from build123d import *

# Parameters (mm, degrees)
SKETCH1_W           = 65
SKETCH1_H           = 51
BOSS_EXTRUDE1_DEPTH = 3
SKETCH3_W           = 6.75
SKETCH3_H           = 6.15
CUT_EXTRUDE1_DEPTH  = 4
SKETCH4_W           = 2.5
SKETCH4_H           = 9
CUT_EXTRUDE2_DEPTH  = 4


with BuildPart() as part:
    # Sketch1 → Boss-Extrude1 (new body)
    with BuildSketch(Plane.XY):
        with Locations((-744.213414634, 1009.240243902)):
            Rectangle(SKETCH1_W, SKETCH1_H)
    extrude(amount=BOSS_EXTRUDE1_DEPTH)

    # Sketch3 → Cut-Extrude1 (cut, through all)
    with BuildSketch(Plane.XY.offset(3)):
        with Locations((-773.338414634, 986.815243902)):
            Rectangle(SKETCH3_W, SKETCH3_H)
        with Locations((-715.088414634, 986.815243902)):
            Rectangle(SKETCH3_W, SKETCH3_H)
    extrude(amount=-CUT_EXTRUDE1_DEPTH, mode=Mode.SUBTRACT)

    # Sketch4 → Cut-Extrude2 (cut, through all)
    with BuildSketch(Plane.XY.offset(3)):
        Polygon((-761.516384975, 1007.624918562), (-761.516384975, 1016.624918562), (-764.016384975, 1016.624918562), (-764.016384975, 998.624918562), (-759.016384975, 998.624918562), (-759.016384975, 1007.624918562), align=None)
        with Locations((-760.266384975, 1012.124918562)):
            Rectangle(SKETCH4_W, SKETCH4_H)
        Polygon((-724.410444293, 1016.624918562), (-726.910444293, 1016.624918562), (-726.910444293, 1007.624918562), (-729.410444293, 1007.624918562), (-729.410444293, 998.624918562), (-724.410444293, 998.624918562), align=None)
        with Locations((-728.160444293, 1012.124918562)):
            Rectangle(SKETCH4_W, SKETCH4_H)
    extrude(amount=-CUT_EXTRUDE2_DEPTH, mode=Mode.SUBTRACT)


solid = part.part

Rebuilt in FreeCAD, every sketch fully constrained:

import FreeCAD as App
import Part
import Sketcher

V = App.Vector

doc = App.newDocument("Part")
body = doc.addObject("PartDesign::Body", "Body")

sketch1 = body.newObject("Sketcher::SketchObject", "Sketch")
sketch1.AttachmentSupport = (doc.getObject("XY_Plane"), [""])
sketch1.MapMode = "FlatFace"
sketch1.addGeometry(Part.LineSegment(V(-776.713415, 1034.740244, 0), V(-776.713415, 983.740244, 0)), False)
sketch1.addGeometry(Part.LineSegment(V(-776.713415, 983.740244, 0), V(-711.713415, 983.740244, 0)), False)
sketch1.addGeometry(Part.LineSegment(V(-711.713415, 983.740244, 0), V(-711.713415, 1034.740244, 0)), False)
sketch1.addGeometry(Part.LineSegment(V(-711.713415, 1034.740244, 0), V(-776.713415, 1034.740244, 0)), False)
sketch1.addConstraint(Sketcher.Constraint("Coincident", 0, 2, 1, 1))
sketch1.addConstraint(Sketcher.Constraint("Coincident", 1, 2, 2, 1))
sketch1.addConstraint(Sketcher.Constraint("Coincident", 2, 2, 3, 1))
sketch1.addConstraint(Sketcher.Constraint("Coincident", 3, 2, 0, 1))
sketch1.addConstraint(Sketcher.Constraint("Vertical", 0))
sketch1.addConstraint(Sketcher.Constraint("Horizontal", 1))
sketch1.addConstraint(Sketcher.Constraint("Vertical", 2))
sketch1.addConstraint(Sketcher.Constraint("Horizontal", 3))
sketch1.addConstraint(Sketcher.Constraint("DistanceX", 1, 1, 1, 2, 65.0))
sketch1.addConstraint(Sketcher.Constraint("DistanceY", 0, 2, 0, 1, 51.0))
sketch1.addConstraint(Sketcher.Constraint("DistanceX", 0, 2, -1, 1, 776.713415))
sketch1.addConstraint(Sketcher.Constraint("DistanceY", -1, 1, 0, 2, 983.740244))
pad1 = body.newObject("PartDesign::Pad", "Pad")
pad1.Profile = sketch1
pad1.Length = 3

sketch2 = body.newObject("Sketcher::SketchObject", "Sketch001")
sketch2.AttachmentSupport = (doc.getObject("XY_Plane"), [""])
sketch2.MapMode = "FlatFace"
sketch2.AttachmentOffset = App.Placement(V(0, 0, 3), App.Rotation())
sketch2.addGeometry(Part.LineSegment(V(-776.713415, 989.890244, 0), V(-776.713415, 983.740244, 0)), False)
sketch2.addGeometry(Part.LineSegment(V(-776.713415, 983.740244, 0), V(-769.963415, 983.740244, 0)), False)
sketch2.addGeometry(Part.LineSegment(V(-769.963415, 983.740244, 0), V(-769.963415, 989.890244, 0)), False)
sketch2.addGeometry(Part.LineSegment(V(-769.963415, 989.890244, 0), V(-776.713415, 989.890244, 0)), False)
sketch2.addGeometry(Part.LineSegment(V(-718.463415, 989.890244, 0), V(-718.463415, 983.740244, 0)), False)
sketch2.addGeometry(Part.LineSegment(V(-718.463415, 983.740244, 0), V(-711.713415, 983.740244, 0)), False)
sketch2.addGeometry(Part.LineSegment(V(-711.713415, 983.740244, 0), V(-711.713415, 989.890244, 0)), False)
sketch2.addGeometry(Part.LineSegment(V(-711.713415, 989.890244, 0), V(-718.463415, 989.890244, 0)), False)
sketch2.addConstraint(Sketcher.Constraint("Coincident", 0, 2, 1, 1))
sketch2.addConstraint(Sketcher.Constraint("Coincident", 1, 2, 2, 1))
sketch2.addConstraint(Sketcher.Constraint("Coincident", 2, 2, 3, 1))
sketch2.addConstraint(Sketcher.Constraint("Coincident", 3, 2, 0, 1))
sketch2.addConstraint(Sketcher.Constraint("Coincident", 4, 2, 5, 1))
sketch2.addConstraint(Sketcher.Constraint("Coincident", 5, 2, 6, 1))
sketch2.addConstraint(Sketcher.Constraint("Coincident", 6, 2, 7, 1))
sketch2.addConstraint(Sketcher.Constraint("Coincident", 7, 2, 4, 1))
sketch2.addConstraint(Sketcher.Constraint("Vertical", 0))
sketch2.addConstraint(Sketcher.Constraint("Horizontal", 1))
sketch2.addConstraint(Sketcher.Constraint("Vertical", 2))
sketch2.addConstraint(Sketcher.Constraint("Horizontal", 3))
sketch2.addConstraint(Sketcher.Constraint("Vertical", 4))
sketch2.addConstraint(Sketcher.Constraint("Horizontal", 5))
sketch2.addConstraint(Sketcher.Constraint("Vertical", 6))
sketch2.addConstraint(Sketcher.Constraint("Horizontal", 7))
sketch2.addConstraint(Sketcher.Constraint("Horizontal", 1, 2, 4, 2))
sketch2.addConstraint(Sketcher.Constraint("Horizontal", 3, 2, 6, 2))
sketch2.addConstraint(Sketcher.Constraint("Equal", 3, 5))
sketch2.addConstraint(Sketcher.Constraint("DistanceX", 0, 2, 5, 2, 65.0))
sketch2.addConstraint(Sketcher.Constraint("DistanceX", 1, 1, 1, 2, 6.75))
sketch2.addConstraint(Sketcher.Constraint("DistanceY", 0, 2, 0, 1, 6.15))
sketch2.addConstraint(Sketcher.Constraint("DistanceX", 0, 2, -1, 1, 776.713415))
sketch2.addConstraint(Sketcher.Constraint("DistanceY", -1, 1, 0, 2, 983.740244))
pocket1 = body.newObject("PartDesign::Pocket", "Pocket")
pocket1.Profile = sketch2
pocket1.Type = "ThroughAll"

sketch3 = body.newObject("Sketcher::SketchObject", "Sketch002")
sketch3.AttachmentSupport = (doc.getObject("XY_Plane"), [""])
sketch3.MapMode = "FlatFace"
sketch3.AttachmentOffset = App.Placement(V(0, 0, 3), App.Rotation())
sketch3.addGeometry(Part.LineSegment(V(-764.016385, 1016.624919, 0), V(-764.016385, 998.624919, 0)), False)
sketch3.addGeometry(Part.LineSegment(V(-764.016385, 998.624919, 0), V(-759.016385, 998.624919, 0)), False)
sketch3.addGeometry(Part.LineSegment(V(-759.016385, 998.624919, 0), V(-759.016385, 1016.624919, 0)), False)
sketch3.addGeometry(Part.LineSegment(V(-759.016385, 1016.624919, 0), V(-764.016385, 1016.624919, 0)), False)
sketch3.addGeometry(Part.LineSegment(V(-724.410444, 1016.624919, 0), V(-729.410444, 1016.624919, 0)), False)
sketch3.addGeometry(Part.LineSegment(V(-729.410444, 1016.624919, 0), V(-729.410444, 998.624919, 0)), False)
sketch3.addGeometry(Part.LineSegment(V(-729.410444, 998.624919, 0), V(-724.410444, 998.624919, 0)), False)
sketch3.addGeometry(Part.LineSegment(V(-724.410444, 998.624919, 0), V(-724.410444, 1016.624919, 0)), False)
sketch3.addConstraint(Sketcher.Constraint("Coincident", 0, 2, 1, 1))
sketch3.addConstraint(Sketcher.Constraint("Coincident", 1, 2, 2, 1))
sketch3.addConstraint(Sketcher.Constraint("Coincident", 2, 2, 3, 1))
sketch3.addConstraint(Sketcher.Constraint("Coincident", 3, 2, 0, 1))
sketch3.addConstraint(Sketcher.Constraint("Coincident", 4, 2, 5, 1))
sketch3.addConstraint(Sketcher.Constraint("Coincident", 5, 2, 6, 1))
sketch3.addConstraint(Sketcher.Constraint("Coincident", 6, 2, 7, 1))
sketch3.addConstraint(Sketcher.Constraint("Coincident", 7, 2, 4, 1))
sketch3.addConstraint(Sketcher.Constraint("Vertical", 0))
sketch3.addConstraint(Sketcher.Constraint("Horizontal", 1))
sketch3.addConstraint(Sketcher.Constraint("Vertical", 2))
sketch3.addConstraint(Sketcher.Constraint("Horizontal", 3))
sketch3.addConstraint(Sketcher.Constraint("Horizontal", 4))
sketch3.addConstraint(Sketcher.Constraint("Vertical", 5))
sketch3.addConstraint(Sketcher.Constraint("Horizontal", 6))
sketch3.addConstraint(Sketcher.Constraint("Vertical", 7))
sketch3.addConstraint(Sketcher.Constraint("Horizontal", 3, 2, 4, 2))
sketch3.addConstraint(Sketcher.Constraint("Horizontal", 1, 2, 5, 2))
sketch3.addConstraint(Sketcher.Constraint("Equal", 3, 4))
sketch3.addConstraint(Sketcher.Constraint("DistanceX", 1, 1, 1, 2, 5.0))
sketch3.addConstraint(Sketcher.Constraint("DistanceY", 0, 2, 0, 1, 18.0))
sketch3.addConstraint(Sketcher.Constraint("DistanceY", -1, 1, 0, 2, 998.624919))
sketch3.addConstraint(Sketcher.Constraint("DistanceX", 2, 2, 4, 2, 29.605941))
sketch3.addConstraint(Sketcher.Constraint("DistanceX", 0, 2, -1, 1, 764.016385))
pocket2 = body.newObject("PartDesign::Pocket", "Pocket001")
pocket2.Profile = sketch3
pocket2.Type = "ThroughAll"

doc.recompute()
